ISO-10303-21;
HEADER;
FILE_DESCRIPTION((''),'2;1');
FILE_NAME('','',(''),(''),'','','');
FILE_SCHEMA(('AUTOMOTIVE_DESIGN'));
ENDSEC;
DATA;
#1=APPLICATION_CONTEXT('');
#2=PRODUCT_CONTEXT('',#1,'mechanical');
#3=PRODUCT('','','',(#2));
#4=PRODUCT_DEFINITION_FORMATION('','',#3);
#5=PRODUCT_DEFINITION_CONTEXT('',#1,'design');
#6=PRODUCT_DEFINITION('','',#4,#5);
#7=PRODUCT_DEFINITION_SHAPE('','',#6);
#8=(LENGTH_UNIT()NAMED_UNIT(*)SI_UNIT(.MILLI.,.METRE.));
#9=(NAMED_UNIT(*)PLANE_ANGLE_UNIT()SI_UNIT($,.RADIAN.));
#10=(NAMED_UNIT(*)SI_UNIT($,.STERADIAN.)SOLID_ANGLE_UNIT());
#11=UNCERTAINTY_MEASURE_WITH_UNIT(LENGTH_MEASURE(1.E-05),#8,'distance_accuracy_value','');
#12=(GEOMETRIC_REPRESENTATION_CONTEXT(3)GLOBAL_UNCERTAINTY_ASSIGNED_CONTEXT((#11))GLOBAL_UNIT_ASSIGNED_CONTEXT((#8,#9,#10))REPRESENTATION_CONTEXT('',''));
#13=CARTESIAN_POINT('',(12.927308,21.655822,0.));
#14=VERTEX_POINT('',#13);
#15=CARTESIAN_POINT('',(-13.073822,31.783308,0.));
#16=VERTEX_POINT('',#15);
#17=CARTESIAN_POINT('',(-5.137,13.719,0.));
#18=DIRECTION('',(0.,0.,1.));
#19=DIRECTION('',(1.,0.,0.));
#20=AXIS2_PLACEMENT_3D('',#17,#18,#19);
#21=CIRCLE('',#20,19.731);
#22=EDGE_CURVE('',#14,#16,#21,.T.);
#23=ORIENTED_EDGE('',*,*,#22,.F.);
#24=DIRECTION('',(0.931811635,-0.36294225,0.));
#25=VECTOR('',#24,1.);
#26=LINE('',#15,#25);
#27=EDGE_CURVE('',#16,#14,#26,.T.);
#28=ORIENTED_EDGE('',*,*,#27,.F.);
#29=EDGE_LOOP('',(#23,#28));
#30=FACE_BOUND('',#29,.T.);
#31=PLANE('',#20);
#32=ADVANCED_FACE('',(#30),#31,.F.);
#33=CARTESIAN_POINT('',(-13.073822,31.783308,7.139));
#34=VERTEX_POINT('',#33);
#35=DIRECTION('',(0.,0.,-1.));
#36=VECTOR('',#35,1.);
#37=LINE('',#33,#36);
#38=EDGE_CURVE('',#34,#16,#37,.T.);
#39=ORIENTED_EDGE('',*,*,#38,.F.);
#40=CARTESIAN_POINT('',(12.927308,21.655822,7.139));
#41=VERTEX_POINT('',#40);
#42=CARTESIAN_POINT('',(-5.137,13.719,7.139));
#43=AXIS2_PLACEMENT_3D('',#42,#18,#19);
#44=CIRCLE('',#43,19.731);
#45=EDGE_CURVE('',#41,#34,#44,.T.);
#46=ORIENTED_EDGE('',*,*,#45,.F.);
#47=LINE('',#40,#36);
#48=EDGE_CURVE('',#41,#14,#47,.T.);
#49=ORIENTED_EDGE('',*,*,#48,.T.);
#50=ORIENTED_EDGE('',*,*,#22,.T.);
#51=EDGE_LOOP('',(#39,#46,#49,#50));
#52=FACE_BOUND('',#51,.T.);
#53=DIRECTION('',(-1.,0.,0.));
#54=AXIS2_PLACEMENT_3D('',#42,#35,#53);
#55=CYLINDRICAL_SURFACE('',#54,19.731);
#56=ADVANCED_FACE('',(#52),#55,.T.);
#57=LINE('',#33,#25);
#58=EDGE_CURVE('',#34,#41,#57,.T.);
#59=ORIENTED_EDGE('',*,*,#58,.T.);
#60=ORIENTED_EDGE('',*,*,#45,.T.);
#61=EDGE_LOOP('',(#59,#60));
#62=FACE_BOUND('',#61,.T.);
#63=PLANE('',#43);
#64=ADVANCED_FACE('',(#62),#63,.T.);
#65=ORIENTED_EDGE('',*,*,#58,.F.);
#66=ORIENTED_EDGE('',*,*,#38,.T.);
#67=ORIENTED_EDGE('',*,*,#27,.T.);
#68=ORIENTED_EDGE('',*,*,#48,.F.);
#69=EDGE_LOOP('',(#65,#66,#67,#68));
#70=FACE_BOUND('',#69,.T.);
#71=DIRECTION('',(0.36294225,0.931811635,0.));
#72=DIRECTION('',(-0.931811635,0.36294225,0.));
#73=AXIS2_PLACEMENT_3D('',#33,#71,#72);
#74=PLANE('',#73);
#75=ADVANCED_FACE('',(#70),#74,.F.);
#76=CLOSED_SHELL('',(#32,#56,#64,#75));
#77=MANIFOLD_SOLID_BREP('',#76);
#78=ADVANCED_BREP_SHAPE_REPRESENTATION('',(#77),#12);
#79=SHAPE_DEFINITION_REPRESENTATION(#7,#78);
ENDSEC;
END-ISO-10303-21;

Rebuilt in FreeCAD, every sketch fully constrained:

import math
import FreeCAD as App
import Part
import Sketcher

V = App.Vector

doc = App.newDocument("Part")
body = doc.addObject("PartDesign::Body", "Body")

sketch1 = body.newObject("Sketcher::SketchObject", "Sketch")
sketch1.AttachmentSupport = (doc.getObject("XY_Plane"), [""])
sketch1.MapMode = "FlatFace"
sketch1.addGeometry(Part.LineSegment(V(-13, 32, 0), V(13, 22, 0)), False)
sketch1.addGeometry(Part.ArcOfCircle(Part.Circle(V(-5, 14, 0), V(0, 0, 1), 20), math.radians(24), math.radians(114)), False)
sketch1.addConstraint(Sketcher.Constraint("Coincident", 0, 1, 1, 2))
sketch1.addConstraint(Sketcher.Constraint("Coincident", 1, 1, 0, 2))
sketch1.addConstraint(Sketcher.Constraint("Radius", 1, 19.731))
sketch1.addConstraint(Sketcher.Constraint("DistanceX", 1, 3, -1, 1, 5.137))
sketch1.addConstraint(Sketcher.Constraint("DistanceY", -1, 1, 1, 3, 13.719))
sketch1.addConstraint(Sketcher.Constraint("DistanceX", 0, 1, 1, 1, 26.00113))
sketch1.addConstraint(Sketcher.Constraint("Distance", 0, 27.903848))
pad1 = body.newObject("PartDesign::Pad", "Pad")
pad1.Profile = sketch1
pad1.Length = 7.139

doc.recompute()
